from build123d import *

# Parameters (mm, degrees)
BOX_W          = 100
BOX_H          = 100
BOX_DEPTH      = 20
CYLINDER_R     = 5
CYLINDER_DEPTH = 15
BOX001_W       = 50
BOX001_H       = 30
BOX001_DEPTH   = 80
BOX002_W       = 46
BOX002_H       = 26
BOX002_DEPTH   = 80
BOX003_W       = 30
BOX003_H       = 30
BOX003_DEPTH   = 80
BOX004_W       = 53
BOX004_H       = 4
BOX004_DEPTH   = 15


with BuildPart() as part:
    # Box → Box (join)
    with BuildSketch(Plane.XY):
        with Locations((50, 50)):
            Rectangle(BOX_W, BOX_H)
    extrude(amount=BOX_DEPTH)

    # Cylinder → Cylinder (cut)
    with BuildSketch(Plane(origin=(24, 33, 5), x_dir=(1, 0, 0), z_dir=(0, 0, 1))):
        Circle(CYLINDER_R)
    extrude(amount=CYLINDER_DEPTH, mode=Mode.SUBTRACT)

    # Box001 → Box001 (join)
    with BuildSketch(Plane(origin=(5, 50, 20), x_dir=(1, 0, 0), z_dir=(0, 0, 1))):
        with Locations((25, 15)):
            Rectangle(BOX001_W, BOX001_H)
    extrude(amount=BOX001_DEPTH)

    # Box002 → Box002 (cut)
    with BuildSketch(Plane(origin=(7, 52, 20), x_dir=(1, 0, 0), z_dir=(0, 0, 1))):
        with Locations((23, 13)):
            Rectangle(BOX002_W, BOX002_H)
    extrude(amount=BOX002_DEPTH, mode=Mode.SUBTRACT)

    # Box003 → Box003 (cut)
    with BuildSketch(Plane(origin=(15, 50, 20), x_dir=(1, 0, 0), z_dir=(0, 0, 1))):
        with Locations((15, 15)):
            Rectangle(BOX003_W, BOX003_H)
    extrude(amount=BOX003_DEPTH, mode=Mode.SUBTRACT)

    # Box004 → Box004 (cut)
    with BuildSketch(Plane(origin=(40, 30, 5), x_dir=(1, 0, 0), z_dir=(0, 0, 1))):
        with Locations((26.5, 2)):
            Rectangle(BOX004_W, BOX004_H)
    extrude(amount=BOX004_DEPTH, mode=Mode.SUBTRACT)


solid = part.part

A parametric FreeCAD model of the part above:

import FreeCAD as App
import Part
import Sketcher

V = App.Vector
Q = App.Units.Quantity


def add_polygon(sketch, points):
    """Adds a closed chain of lines whose ends are joined by coincident constraints."""
    first, n = sketch.GeometryCount, len(points)
    for a, b in zip(points, points[1:] + points[:1]):
        sketch.addGeometry(Part.LineSegment(App.Vector(*a, 0), App.Vector(*b, 0)), False)
    for i in range(n):
        sketch.addConstraint(Sketcher.Constraint("Coincident", first + i, 2, first + (i + 1) % n, 1))

doc = App.newDocument("Part")
body = doc.addObject("PartDesign::Body", "Body")

# Sketch on XY plane
sketch1 = body.newObject("Sketcher::SketchObject", "Sketch")
sketch1.AttachmentSupport = (doc.getObject("XY_Plane"), [""])
sketch1.MapMode = "FlatFace"
add_polygon(sketch1, [(0, 100), (0, 0), (100, 0), (100, 100)])  # lines 0-3
sketch1.addConstraint(Sketcher.Constraint("Vertical", 0))
sketch1.addConstraint(Sketcher.Constraint("Horizontal", 1))
sketch1.addConstraint(Sketcher.Constraint("Vertical", 2))
sketch1.addConstraint(Sketcher.Constraint("Horizontal", 3))
sketch1.addConstraint(Sketcher.Constraint("Coincident", 0, 2, -1, 1))
sketch1.addConstraint(Sketcher.Constraint("Equal", 3, 0))
sketch1.addConstraint(Sketcher.Constraint("DistanceX", 1, 1, 1, 2, Q("100 mm")))
pad1 = body.newObject("PartDesign::Pad", "Pad")
pad1.Profile = sketch1
pad1.Length = 20

# Sketch on XY plane
sketch2 = body.newObject("Sketcher::SketchObject", "Sketch001")
sketch2.AttachmentSupport = (doc.getObject("XY_Plane"), [""])
sketch2.MapMode = "FlatFace"
sketch2.AttachmentOffset = App.Placement(V(0, 0, 5), App.Rotation())
sketch2.addGeometry(Part.Circle(V(24, 33, 0), V(0, 0, 1), 5), False)
sketch2.addConstraint(Sketcher.Constraint("Diameter", 0, Q("10 mm")))
sketch2.addConstraint(Sketcher.Constraint("DistanceX", -1, 1, 0, 3, Q("24 mm")))
sketch2.addConstraint(Sketcher.Constraint("DistanceY", -1, 1, 0, 3, Q("33 mm")))
pocket1 = body.newObject("PartDesign::Pocket", "Pocket")
pocket1.Profile = sketch2
pocket1.Length = 15
pocket1.Reversed = True

# Sketch on XY plane
sketch3 = body.newObject("Sketcher::SketchObject", "Sketch002")
sketch3.AttachmentSupport = (doc.getObject("XY_Plane"), [""])
sketch3.MapMode = "FlatFace"
sketch3.AttachmentOffset = App.Placement(V(0, 0, 20), App.Rotation())
add_polygon(sketch3, [(5, 80), (5, 50), (55, 50), (55, 80)])  # lines 0-3
sketch3.addConstraint(Sketcher.Constraint("Vertical", 0))
sketch3.addConstraint(Sketcher.Constraint("Horizontal", 1))
sketch3.addConstraint(Sketcher.Constraint("Vertical", 2))
sketch3.addConstraint(Sketcher.Constraint("Horizontal", 3))
sketch3.addConstraint(Sketcher.Constraint("DistanceX", 1, 1, 1, 2, Q("50 mm")))
sketch3.addConstraint(Sketcher.Constraint("DistanceY", 0, 2, 0, 1, Q("30 mm")))
sketch3.addConstraint(Sketcher.Constraint("DistanceX", -1, 1, 0, 2, Q("5 mm")))
sketch3.addConstraint(Sketcher.Constraint("DistanceY", -1, 1, 0, 2, Q("50 mm")))
pad2 = body.newObject("PartDesign::Pad", "Pad001")
pad2.Profile = sketch3
pad2.Length = 80

# Sketch on XY plane
sketch4 = body.newObject("Sketcher::SketchObject", "Sketch003")
sketch4.AttachmentSupport = (doc.getObject("XY_Plane"), [""])
sketch4.MapMode = "FlatFace"
sketch4.AttachmentOffset = App.Placement(V(0, 0, 20), App.Rotation())
add_polygon(sketch4, [(7, 78), (7, 52), (53, 52), (53, 78)])  # lines 0-3
sketch4.addConstraint(Sketcher.Constraint("Vertical", 0))
sketch4.addConstraint(Sketcher.Constraint("Horizontal", 1))
sketch4.addConstraint(Sketcher.Constraint("Vertical", 2))
sketch4.addConstraint(Sketcher.Constraint("Horizontal", 3))
sketch4.addConstraint(Sketcher.Constraint("DistanceX", 1, 1, 1, 2, Q("46 mm")))
sketch4.addConstraint(Sketcher.Constraint("DistanceY", 0, 2, 0, 1, Q("26 mm")))
sketch4.addConstraint(Sketcher.Constraint("DistanceX", -1, 1, 0, 2, Q("7 mm")))
sketch4.addConstraint(Sketcher.Constraint("DistanceY", -1, 1, 0, 2, Q("52 mm")))
pocket2 = body.newObject("PartDesign::Pocket", "Pocket001")
pocket2.Profile = sketch4
pocket2.Length = 80
pocket2.Reversed = True

# Sketch on XY plane
sketch5 = body.newObject("Sketcher::SketchObject", "Sketch004")
sketch5.AttachmentSupport = (doc.getObject("XY_Plane"), [""])
sketch5.MapMode = "FlatFace"
sketch5.AttachmentOffset = App.Placement(V(0, 0, 20), App.Rotation())
add_polygon(sketch5, [(15, 80), (15, 50), (45, 50), (45, 80)])  # lines 0-3
sketch5.addConstraint(Sketcher.Constraint("Vertical", 0))
sketch5.addConstraint(Sketcher.Constraint("Horizontal", 1))
sketch5.addConstraint(Sketcher.Constraint("Vertical", 2))
sketch5.addConstraint(Sketcher.Constraint("Horizontal", 3))
sketch5.addConstraint(Sketcher.Constraint("Equal", 3, 0))
sketch5.addConstraint(Sketcher.Constraint("DistanceX", 1, 1, 1, 2, Q("30 mm")))
sketch5.addConstraint(Sketcher.Constraint("DistanceX", -1, 1, 0, 2, Q("15 mm")))
sketch5.addConstraint(Sketcher.Constraint("DistanceY", -1, 1, 0, 2, Q("50 mm")))
pocket3 = body.newObject("PartDesign::Pocket", "Pocket002")
pocket3.Profile = sketch5
pocket3.Length = 80
pocket3.Reversed = True

# Sketch on XY plane
sketch6 = body.newObject("Sketcher::SketchObject", "Sketch005")
sketch6.AttachmentSupport = (doc.getObject("XY_Plane"), [""])
sketch6.MapMode = "FlatFace"
sketch6.AttachmentOffset = App.Placement(V(0, 0, 5), App.Rotation())
add_polygon(sketch6, [(40, 34), (40, 30), (93, 30), (93, 34)])  # lines 0-3
sketch6.addConstraint(Sketcher.Constraint("Vertical", 0))
sketch6.addConstraint(Sketcher.Constraint("Horizontal", 1))
sketch6.addConstraint(Sketcher.Constraint("Vertical", 2))
sketch6.addConstraint(Sketcher.Constraint("Horizontal", 3))
sketch6.addConstraint(Sketcher.Constraint("DistanceX", 1, 1, 1, 2, Q("53 mm")))
sketch6.addConstraint(Sketcher.Constraint("DistanceY", 0, 2, 0, 1, Q("4 mm")))
sketch6.addConstraint(Sketcher.Constraint("DistanceX", -1, 1, 0, 2, Q("40 mm")))
sketch6.addConstraint(Sketcher.Constraint("DistanceY", -1, 1, 0, 2, Q("30 mm")))
pocket4 = body.newObject("PartDesign::Pocket", "Pocket003")
pocket4.Profile = sketch6
pocket4.Length = 15
pocket4.Reversed = True

doc.recompute()
